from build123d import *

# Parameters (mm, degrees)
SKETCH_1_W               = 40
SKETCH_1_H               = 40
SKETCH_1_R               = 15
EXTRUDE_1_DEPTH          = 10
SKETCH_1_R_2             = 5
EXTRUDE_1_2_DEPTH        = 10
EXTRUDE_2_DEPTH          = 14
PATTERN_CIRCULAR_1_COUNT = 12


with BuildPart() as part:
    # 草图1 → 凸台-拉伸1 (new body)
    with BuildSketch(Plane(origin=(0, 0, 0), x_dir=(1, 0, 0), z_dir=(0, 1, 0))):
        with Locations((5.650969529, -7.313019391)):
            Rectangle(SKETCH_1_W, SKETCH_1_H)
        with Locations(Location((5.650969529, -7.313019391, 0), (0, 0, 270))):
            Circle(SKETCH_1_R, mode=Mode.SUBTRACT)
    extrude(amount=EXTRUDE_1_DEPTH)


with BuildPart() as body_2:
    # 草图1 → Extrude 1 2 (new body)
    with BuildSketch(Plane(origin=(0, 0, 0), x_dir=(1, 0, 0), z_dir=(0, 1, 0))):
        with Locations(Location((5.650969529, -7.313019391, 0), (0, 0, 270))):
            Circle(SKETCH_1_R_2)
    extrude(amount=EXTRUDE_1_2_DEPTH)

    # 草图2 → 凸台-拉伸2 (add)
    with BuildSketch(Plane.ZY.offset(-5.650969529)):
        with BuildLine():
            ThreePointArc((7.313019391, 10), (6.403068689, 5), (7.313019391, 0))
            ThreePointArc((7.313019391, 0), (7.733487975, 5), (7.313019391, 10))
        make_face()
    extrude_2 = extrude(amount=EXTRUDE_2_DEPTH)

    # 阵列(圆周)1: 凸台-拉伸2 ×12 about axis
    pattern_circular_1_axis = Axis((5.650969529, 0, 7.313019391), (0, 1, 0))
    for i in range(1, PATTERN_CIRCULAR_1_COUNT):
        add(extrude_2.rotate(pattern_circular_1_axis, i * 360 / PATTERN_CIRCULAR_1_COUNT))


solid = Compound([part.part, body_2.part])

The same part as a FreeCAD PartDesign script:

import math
import FreeCAD as App
import Part
import Sketcher
Q = App.Units.Quantity


def add_polygon(sketch, points):
    """Adds a closed chain of lines whose ends are joined by coincident constraints."""
    first, n = sketch.GeometryCount, len(points)
    for a, b in zip(points, points[1:] + points[:1]):
        sketch.addGeometry(Part.LineSegment(App.Vector(*a, 0), App.Vector(*b, 0)), False)
    for i in range(n):
        sketch.addConstraint(Sketcher.Constraint("Coincident", first + i, 2, first + (i + 1) % n, 1))

doc = App.newDocument("Part")
body = doc.addObject("PartDesign::Body", "Body")

sketch1 = doc.addObject("Sketcher::SketchObject", "Sketch")
body.addObject(sketch1)
sketch1.AttachmentSupport = (doc.XZ_Plane, [""])
sketch1.MapMode = "FlatFace"
add_polygon(sketch1, [(-14, -13), (-14, 27), (26, 27), (26, -13)])
sketch1.addGeometry(Part.Circle(App.Vector(6, 7, 0), App.Vector(0, 0, 1), 15), False)
sketch1.addConstraint([
    Sketcher.Constraint("Vertical", 0),
    Sketcher.Constraint("Horizontal", 1),
    Sketcher.Constraint("Vertical", 2),
    Sketcher.Constraint("Horizontal", 3),
    Sketcher.Constraint("Equal", 3, 0),
    Sketcher.Constraint("Diameter", 4, Q("30 mm")),
    Sketcher.Constraint("DistanceX", 1, 1, 1, 2, Q("40 mm")),
    Sketcher.Constraint("DistanceX", 0, 2, 4, 3, Q("20 mm")),
    Sketcher.Constraint("DistanceY", 4, 3, 0, 2, Q("20 mm")),
    Sketcher.Constraint("DistanceX", -1, 1, 4, 3, Q("5.65097 mm")),
    Sketcher.Constraint("DistanceY", -1, 1, 4, 3, Q("7.313019 mm")),
])
pad1 = doc.addObject("PartDesign::Pad", "Pad")
body.addObject(pad1)
pad1.Profile = sketch1
pad1.Length = 10
pad1.Reversed = True
body2 = doc.addObject("PartDesign::Body", "Body001")

sketch2 = doc.addObject("Sketcher::SketchObject", "Sketch001")
body2.addObject(sketch2)
sketch2.AttachmentSupport = (doc.getObject("XZ_Plane001"), [""])
sketch2.MapMode = "FlatFace"
sketch2.addGeometry(Part.Circle(App.Vector(6, 7, 0), App.Vector(0, 0, 1), 5), False)
sketch2.addConstraint([
    Sketcher.Constraint("Diameter", 0, Q("10 mm")),
    Sketcher.Constraint("DistanceX", -1, 1, 0, 3, Q("5.65097 mm")),
    Sketcher.Constraint("DistanceY", -1, 1, 0, 3, Q("7.313019 mm")),
])
pad2 = doc.addObject("PartDesign::Pad", "Pad001")
body2.addObject(pad2)
pad2.Profile = sketch2
pad2.Length = 10
pad2.Reversed = True

sketch3 = doc.addObject("Sketcher::SketchObject", "Sketch002")
body2.addObject(sketch3)
sketch3.AttachmentSupport = (doc.getObject("YZ_Plane001"), [""])
sketch3.MapMode = "FlatFace"
sketch3.AttachmentOffset = App.Placement(App.Vector(0, 0, 5.65097), App.Rotation())
sketch3.addGeometry([
    Part.ArcOfCircle(Part.Circle(App.Vector(5, 21, 0), App.Vector(0, 0, 1), 14), math.radians(-111), math.radians(-69)),
    Part.ArcOfCircle(Part.Circle(App.Vector(5, -22, 0), App.Vector(0, 0, 1), 30), math.radians(80.39), math.radians(99.61)),
], False)
sketch3.addConstraint([
    Sketcher.Constraint("Coincident", 0, 1, 1, 2),
    Sketcher.Constraint("Coincident", 1, 1, 0, 2),
    Sketcher.Constraint("PointOnObject", 0, 1, -2),
    Sketcher.Constraint("Horizontal", 0, 1, 1, 1),
    Sketcher.Constraint("DistanceX", -1, 1, 0, 3, Q("5 mm")),
    Sketcher.Constraint("Radius", 1, Q("29.938971 mm")),
    Sketcher.Constraint("Radius", 0, Q("14.191983 mm")),
    Sketcher.Constraint("DistanceY", -1, 1, 0, 3, Q("20.595052 mm")),
])
pad3 = doc.addObject("PartDesign::Pad", "Pad002")
body2.addObject(pad3)
pad3.Profile = sketch3
pad3.Length = 14
pad3.Reversed = True
doc.recompute()

datumline = doc.addObject("PartDesign::Line", "DatumLine")
body2.addObject(datumline)
datumline.Placement = App.Placement(App.Vector(5.65097, 0, 7.313019), App.Rotation(App.Vector(0, 0, 1), App.Vector(0, 1, 0)))
polarpattern = doc.addObject("PartDesign::PolarPattern", "PolarPattern")
body2.addObject(polarpattern)
polarpattern.Originals = [pad3]
polarpattern.Axis = (datumline, [""])
polarpattern.Angle = 360
polarpattern.Occurrences = 12
body2.Tip = polarpattern

doc.recompute()
